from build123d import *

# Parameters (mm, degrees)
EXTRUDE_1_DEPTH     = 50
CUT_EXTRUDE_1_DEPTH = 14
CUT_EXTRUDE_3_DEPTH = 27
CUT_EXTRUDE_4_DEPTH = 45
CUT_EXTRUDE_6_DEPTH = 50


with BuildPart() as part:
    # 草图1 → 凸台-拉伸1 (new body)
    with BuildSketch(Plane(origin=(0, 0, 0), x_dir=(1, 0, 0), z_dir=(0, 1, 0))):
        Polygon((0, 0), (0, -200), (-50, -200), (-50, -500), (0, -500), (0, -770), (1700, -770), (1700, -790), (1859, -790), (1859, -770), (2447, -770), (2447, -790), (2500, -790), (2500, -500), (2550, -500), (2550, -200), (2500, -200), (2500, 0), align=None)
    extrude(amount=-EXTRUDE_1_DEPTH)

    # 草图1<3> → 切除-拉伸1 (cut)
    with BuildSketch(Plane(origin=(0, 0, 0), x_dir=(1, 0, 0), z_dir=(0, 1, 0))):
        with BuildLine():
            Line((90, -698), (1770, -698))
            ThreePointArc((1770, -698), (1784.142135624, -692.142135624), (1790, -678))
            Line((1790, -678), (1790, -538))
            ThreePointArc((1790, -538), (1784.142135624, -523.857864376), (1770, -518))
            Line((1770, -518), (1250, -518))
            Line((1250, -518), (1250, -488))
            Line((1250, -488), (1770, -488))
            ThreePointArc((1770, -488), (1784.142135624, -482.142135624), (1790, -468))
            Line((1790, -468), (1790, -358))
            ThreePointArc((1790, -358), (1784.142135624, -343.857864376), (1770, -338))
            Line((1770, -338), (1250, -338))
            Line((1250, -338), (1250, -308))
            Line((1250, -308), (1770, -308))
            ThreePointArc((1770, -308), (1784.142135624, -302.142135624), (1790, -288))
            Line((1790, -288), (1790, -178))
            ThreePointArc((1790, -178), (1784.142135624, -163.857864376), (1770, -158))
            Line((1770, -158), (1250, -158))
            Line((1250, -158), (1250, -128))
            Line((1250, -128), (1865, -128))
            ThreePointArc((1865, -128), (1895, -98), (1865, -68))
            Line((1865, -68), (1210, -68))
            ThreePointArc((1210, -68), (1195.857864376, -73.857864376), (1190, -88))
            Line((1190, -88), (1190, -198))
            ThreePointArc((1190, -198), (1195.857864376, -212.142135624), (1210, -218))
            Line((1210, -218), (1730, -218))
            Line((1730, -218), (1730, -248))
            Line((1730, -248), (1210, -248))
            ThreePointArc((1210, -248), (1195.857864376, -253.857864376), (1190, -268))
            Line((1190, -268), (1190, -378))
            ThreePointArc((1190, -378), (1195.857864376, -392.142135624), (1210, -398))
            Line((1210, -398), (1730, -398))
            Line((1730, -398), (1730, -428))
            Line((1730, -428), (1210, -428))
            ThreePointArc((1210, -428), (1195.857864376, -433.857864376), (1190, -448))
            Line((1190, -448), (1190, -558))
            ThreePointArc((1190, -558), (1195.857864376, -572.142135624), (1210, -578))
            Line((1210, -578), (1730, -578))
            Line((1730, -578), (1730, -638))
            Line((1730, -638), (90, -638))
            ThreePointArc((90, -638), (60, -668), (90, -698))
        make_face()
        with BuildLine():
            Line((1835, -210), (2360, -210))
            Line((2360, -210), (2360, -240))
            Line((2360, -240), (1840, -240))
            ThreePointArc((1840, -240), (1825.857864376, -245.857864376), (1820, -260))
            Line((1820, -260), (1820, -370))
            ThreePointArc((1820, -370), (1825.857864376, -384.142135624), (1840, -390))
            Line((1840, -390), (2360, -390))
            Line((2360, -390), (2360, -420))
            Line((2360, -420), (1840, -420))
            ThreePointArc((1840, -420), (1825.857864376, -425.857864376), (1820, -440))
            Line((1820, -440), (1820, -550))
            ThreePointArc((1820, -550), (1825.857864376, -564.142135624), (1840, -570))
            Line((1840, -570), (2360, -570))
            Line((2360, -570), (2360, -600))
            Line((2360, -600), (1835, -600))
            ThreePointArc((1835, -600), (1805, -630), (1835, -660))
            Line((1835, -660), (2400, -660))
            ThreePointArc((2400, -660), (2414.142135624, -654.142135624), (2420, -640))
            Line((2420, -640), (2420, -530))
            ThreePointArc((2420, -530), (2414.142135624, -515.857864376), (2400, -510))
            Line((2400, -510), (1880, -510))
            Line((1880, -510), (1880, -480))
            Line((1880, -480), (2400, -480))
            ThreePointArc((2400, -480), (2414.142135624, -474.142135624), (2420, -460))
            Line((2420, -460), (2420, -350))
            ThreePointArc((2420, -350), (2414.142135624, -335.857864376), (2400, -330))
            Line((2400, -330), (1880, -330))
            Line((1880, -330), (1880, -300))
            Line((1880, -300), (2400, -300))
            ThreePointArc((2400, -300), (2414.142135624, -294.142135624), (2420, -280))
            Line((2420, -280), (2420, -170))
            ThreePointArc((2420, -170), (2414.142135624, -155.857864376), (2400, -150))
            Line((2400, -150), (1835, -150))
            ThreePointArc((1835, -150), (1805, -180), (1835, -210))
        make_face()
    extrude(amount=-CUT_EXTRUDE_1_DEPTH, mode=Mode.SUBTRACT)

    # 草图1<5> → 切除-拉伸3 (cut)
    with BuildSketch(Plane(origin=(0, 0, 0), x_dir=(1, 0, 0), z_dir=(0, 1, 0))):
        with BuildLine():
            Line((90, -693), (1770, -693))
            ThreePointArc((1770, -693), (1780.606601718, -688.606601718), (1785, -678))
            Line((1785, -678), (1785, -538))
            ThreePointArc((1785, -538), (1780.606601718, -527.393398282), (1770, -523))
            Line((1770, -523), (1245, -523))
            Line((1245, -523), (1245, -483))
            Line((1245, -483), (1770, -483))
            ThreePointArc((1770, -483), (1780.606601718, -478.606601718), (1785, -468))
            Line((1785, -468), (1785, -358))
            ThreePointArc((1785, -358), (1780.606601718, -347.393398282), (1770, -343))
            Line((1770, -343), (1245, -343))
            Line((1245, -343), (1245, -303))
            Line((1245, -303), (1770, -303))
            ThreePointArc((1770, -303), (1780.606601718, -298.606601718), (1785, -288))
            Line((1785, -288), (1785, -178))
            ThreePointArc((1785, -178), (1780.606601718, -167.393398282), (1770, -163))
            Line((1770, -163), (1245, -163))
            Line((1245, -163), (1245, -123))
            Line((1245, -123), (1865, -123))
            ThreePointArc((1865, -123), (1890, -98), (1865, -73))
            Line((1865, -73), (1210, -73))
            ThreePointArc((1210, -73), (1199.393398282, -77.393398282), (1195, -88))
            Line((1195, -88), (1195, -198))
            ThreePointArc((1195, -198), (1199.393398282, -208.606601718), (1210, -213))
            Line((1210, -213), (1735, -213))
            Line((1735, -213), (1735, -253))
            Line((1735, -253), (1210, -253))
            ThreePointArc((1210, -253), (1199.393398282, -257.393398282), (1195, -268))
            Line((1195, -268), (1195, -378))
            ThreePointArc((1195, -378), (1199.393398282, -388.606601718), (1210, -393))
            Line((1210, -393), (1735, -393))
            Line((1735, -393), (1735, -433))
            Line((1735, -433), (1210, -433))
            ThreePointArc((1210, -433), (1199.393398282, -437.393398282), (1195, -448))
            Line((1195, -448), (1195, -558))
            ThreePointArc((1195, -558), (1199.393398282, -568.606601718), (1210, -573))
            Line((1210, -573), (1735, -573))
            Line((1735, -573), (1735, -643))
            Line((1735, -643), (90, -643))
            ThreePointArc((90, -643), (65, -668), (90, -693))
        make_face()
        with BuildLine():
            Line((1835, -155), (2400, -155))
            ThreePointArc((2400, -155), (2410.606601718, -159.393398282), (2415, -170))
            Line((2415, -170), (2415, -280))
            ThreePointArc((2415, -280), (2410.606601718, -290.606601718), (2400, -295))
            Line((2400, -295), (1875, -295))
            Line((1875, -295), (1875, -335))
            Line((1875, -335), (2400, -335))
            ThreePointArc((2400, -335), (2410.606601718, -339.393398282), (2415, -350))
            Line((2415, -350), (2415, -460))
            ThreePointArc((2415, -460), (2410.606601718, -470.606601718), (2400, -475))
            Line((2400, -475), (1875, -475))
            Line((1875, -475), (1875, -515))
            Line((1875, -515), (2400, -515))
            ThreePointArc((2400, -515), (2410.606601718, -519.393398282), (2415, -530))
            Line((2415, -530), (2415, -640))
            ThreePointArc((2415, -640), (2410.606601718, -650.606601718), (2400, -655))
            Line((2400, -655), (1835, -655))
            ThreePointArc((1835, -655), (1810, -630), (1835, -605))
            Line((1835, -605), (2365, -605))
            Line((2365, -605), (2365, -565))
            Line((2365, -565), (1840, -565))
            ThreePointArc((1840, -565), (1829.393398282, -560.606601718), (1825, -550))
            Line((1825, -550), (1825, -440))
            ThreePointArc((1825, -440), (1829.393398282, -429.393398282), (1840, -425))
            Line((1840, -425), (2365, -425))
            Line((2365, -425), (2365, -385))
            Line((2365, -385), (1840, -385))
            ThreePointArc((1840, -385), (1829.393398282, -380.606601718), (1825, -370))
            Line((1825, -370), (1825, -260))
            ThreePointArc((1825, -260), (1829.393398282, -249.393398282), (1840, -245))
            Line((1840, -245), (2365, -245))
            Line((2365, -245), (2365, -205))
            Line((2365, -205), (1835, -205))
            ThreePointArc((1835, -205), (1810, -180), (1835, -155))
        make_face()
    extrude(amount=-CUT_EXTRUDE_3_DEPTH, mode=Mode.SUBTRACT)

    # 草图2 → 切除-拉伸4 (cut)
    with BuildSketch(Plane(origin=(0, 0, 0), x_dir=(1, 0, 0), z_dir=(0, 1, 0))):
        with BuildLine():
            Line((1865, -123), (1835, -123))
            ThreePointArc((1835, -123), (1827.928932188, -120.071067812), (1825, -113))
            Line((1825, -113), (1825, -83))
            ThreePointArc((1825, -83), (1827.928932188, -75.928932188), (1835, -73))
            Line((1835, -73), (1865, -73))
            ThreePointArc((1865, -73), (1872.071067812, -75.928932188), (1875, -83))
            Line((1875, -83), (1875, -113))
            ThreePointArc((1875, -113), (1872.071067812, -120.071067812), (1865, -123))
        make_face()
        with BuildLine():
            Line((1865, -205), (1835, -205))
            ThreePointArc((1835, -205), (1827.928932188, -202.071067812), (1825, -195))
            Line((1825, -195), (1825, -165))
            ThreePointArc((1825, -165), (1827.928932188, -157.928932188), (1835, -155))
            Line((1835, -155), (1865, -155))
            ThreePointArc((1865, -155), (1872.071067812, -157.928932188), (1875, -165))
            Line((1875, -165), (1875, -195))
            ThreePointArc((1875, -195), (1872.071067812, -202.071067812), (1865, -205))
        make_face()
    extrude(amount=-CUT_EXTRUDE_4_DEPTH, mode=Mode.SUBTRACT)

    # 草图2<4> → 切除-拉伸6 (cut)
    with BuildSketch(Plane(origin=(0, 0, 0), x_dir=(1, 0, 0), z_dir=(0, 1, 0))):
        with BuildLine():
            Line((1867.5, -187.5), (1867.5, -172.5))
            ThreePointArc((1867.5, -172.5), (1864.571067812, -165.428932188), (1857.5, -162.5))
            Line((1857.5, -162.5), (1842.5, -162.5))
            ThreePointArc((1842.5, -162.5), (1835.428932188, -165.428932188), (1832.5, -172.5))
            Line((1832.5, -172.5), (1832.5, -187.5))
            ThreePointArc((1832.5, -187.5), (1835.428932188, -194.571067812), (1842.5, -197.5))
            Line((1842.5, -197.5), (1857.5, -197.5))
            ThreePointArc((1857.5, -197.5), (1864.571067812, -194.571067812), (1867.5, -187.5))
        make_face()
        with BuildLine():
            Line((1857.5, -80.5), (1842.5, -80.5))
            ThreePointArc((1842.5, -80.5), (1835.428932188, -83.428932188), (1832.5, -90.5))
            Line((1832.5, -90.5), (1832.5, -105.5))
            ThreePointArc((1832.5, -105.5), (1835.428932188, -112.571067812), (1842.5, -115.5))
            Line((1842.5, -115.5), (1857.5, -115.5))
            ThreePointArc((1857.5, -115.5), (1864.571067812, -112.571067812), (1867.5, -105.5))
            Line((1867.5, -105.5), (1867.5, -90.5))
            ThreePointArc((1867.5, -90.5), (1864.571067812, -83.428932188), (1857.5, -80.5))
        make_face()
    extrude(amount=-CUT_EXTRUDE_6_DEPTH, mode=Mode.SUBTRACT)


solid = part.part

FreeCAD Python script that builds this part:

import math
import FreeCAD as App
import Part
import Sketcher
from FreeCAD import Vector
Q = App.Units.Quantity


def add_polygon(sketch, points):
    """Adds a closed chain of lines whose ends are joined by coincident constraints."""
    first, n = sketch.GeometryCount, len(points)
    for a, b in zip(points, points[1:] + points[:1]):
        sketch.addGeometry(Part.LineSegment(App.Vector(*a, 0), App.Vector(*b, 0)), False)
    for i in range(n):
        sketch.addConstraint(Sketcher.Constraint("Coincident", first + i, 2, first + (i + 1) % n, 1))

doc = App.newDocument("Part")
body = doc.addObject("PartDesign::Body", "Body")

# Sketch on XZ plane
sketch1 = body.newObject("Sketcher::SketchObject", "Sketch")
sketch1.AttachmentSupport = (doc.getObject("XZ_Plane"), [""])
sketch1.MapMode = "FlatFace"
add_polygon(sketch1, [(0, 0), (0, 200), (-50, 200), (-50, 500), (0, 500), (0, 770), (1700, 770), (1700, 790), (1859, 790), (1859, 770), (2447, 770), (2447, 790), (2500, 790), (2500, 500), (2550, 500), (2550, 200), (2500, 200), (2500, 0)])  # lines 0-17
sketch1.addConstraint([
    Sketcher.Constraint("Vertical", 0),
    Sketcher.Constraint("Horizontal", 1),
    Sketcher.Constraint("Vertical", 2),
    Sketcher.Constraint("Horizontal", 3),
    Sketcher.Constraint("Vertical", 4),
    Sketcher.Constraint("Horizontal", 5),
    Sketcher.Constraint("Vertical", 6),
    Sketcher.Constraint("Horizontal", 7),
    Sketcher.Constraint("Vertical", 8),
    Sketcher.Constraint("Horizontal", 9),
    Sketcher.Constraint("Vertical", 10),
    Sketcher.Constraint("Horizontal", 11),
    Sketcher.Constraint("Vertical", 12),
    Sketcher.Constraint("Horizontal", 13),
    Sketcher.Constraint("Vertical", 14),
    Sketcher.Constraint("Horizontal", 15),
    Sketcher.Constraint("Vertical", 16),
    Sketcher.Constraint("Horizontal", 17),
    Sketcher.Constraint("Coincident", 17, 2, -1, 1),
    Sketcher.Constraint("PointOnObject", 3, 2, -2),
    Sketcher.Constraint("Horizontal", 5, 2, 8, 2),
    Sketcher.Constraint("Horizontal", 7, 2, 10, 2),
    Sketcher.Constraint("Horizontal", 3, 2, 12, 2),
    Sketcher.Constraint("Horizontal", 1, 2, 14, 2),
    Sketcher.Constraint("Vertical", 12, 2, 15, 2),
    Sketcher.Constraint("Equal", 3, 13),
    Sketcher.Constraint("DistanceX", 1, 2, 1, 1, Q("50 mm")),
    Sketcher.Constraint("DistanceX", 5, 1, 5, 2, Q("1700 mm")),
    Sketcher.Constraint("DistanceX", 7, 1, 7, 2, Q("159 mm")),
    Sketcher.Constraint("DistanceX", 9, 1, 9, 2, Q("588 mm")),
    Sketcher.Constraint("DistanceX", 11, 1, 11, 2, Q("53 mm")),
    Sketcher.Constraint("DistanceY", 0, 1, 0, 2, Q("200 mm")),
    Sketcher.Constraint("DistanceY", 2, 1, 2, 2, Q("300 mm")),
    Sketcher.Constraint("DistanceY", 4, 1, 4, 2, Q("270 mm")),
    Sketcher.Constraint("DistanceY", 6, 1, 6, 2, Q("20 mm")),
])
pad1 = body.newObject("PartDesign::Pad", "Pad")
pad1.Profile = sketch1
pad1.Length = 50

# Sketch on XZ plane
sketch2 = body.newObject("Sketcher::SketchObject", "Sketch001")
sketch2.AttachmentSupport = (doc.getObject("XZ_Plane"), [""])
sketch2.MapMode = "FlatFace"
sketch2.addGeometry([
    Part.LineSegment(Vector(90, 698, 0), Vector(1770, 698, 0)),  # 0
    Part.ArcOfCircle(Part.Circle(Vector(1770, 678, 0), Vector(0, 0, 1), 20), math.radians(0), math.radians(90)),  # 1
    Part.LineSegment(Vector(1790, 678, 0), Vector(1790, 538, 0)),  # 2
    Part.ArcOfCircle(Part.Circle(Vector(1770, 538, 0), Vector(0, 0, 1), 20), math.radians(-90), math.radians(0)),  # 3
    Part.LineSegment(Vector(1770, 518, 0), Vector(1250, 518, 0)),  # 4
    Part.LineSegment(Vector(1250, 518, 0), Vector(1250, 488, 0)),  # 5
    Part.LineSegment(Vector(1250, 488, 0), Vector(1770, 488, 0)),  # 6
    Part.ArcOfCircle(Part.Circle(Vector(1770, 468, 0), Vector(0, 0, 1), 20), math.radians(0), math.radians(90)),  # 7
    Part.LineSegment(Vector(1790, 468, 0), Vector(1790, 358, 0)),  # 8
    Part.ArcOfCircle(Part.Circle(Vector(1770, 358, 0), Vector(0, 0, 1), 20), math.radians(-90), math.radians(0)),  # 9
    Part.LineSegment(Vector(1770, 338, 0), Vector(1250, 338, 0)),  # 10
    Part.LineSegment(Vector(1250, 338, 0), Vector(1250, 308, 0)),  # 11
    Part.LineSegment(Vector(1250, 308, 0), Vector(1770, 308, 0)),  # 12
    Part.ArcOfCircle(Part.Circle(Vector(1770, 288, 0), Vector(0, 0, 1), 20), math.radians(0), math.radians(90)),  # 13
    Part.LineSegment(Vector(1790, 288, 0), Vector(1790, 178, 0)),  # 14
    Part.ArcOfCircle(Part.Circle(Vector(1770, 178, 0), Vector(0, 0, 1), 20), math.radians(-90), math.radians(0)),  # 15
    Part.LineSegment(Vector(1770, 158, 0), Vector(1250, 158, 0)),  # 16
    Part.LineSegment(Vector(1250, 158, 0), Vector(1250, 128, 0)),  # 17
    Part.LineSegment(Vector(1250, 128, 0), Vector(1865, 128, 0)),  # 18
    Part.ArcOfCircle(Part.Circle(Vector(1865, 98, 0), Vector(0, 0, 1), 30), math.radians(-90), math.radians(90)),  # 19
    Part.LineSegment(Vector(1865, 68, 0), Vector(1210, 68, 0)),  # 20
    Part.ArcOfCircle(Part.Circle(Vector(1210, 88, 0), Vector(0, 0, 1), 20), math.radians(180), math.radians(270)),  # 21
    Part.LineSegment(Vector(1190, 88, 0), Vector(1190, 198, 0)),  # 22
    Part.ArcOfCircle(Part.Circle(Vector(1210, 198, 0), Vector(0, 0, 1), 20), math.radians(90), math.radians(180)),  # 23
    Part.LineSegment(Vector(1210, 218, 0), Vector(1730, 218, 0)),  # 24
    Part.LineSegment(Vector(1730, 218, 0), Vector(1730, 248, 0)),  # 25
    Part.LineSegment(Vector(1730, 248, 0), Vector(1210, 248, 0)),  # 26
    Part.ArcOfCircle(Part.Circle(Vector(1210, 268, 0), Vector(0, 0, 1), 20), math.radians(180), math.radians(270)),  # 27
    Part.LineSegment(Vector(1190, 268, 0), Vector(1190, 378, 0)),  # 28
    Part.ArcOfCircle(Part.Circle(Vector(1210, 378, 0), Vector(0, 0, 1), 20), math.radians(90), math.radians(180)),  # 29
    Part.LineSegment(Vector(1210, 398, 0), Vector(1730, 398, 0)),  # 30
    Part.LineSegment(Vector(1730, 398, 0), Vector(1730, 428, 0)),  # 31
    Part.LineSegment(Vector(1730, 428, 0), Vector(1210, 428, 0)),  # 32
    Part.ArcOfCircle(Part.Circle(Vector(1210, 448, 0), Vector(0, 0, 1), 20), math.radians(180), math.radians(270)),  # 33
    Part.LineSegment(Vector(1190, 448, 0), Vector(1190, 558, 0)),  # 34
    Part.ArcOfCircle(Part.Circle(Vector(1210, 558, 0), Vector(0, 0, 1), 20), math.radians(90), math.radians(180)),  # 35
    Part.LineSegment(Vector(1210, 578, 0), Vector(1730, 578, 0)),  # 36
    Part.LineSegment(Vector(1730, 578, 0), Vector(1730, 638, 0)),  # 37
    Part.LineSegment(Vector(1730, 638, 0), Vector(90, 638, 0)),  # 38
    Part.ArcOfCircle(Part.Circle(Vector(90, 668, 0), Vector(0, 0, 1), 30), math.radians(90), math.radians(270)),  # 39
    Part.LineSegment(Vector(1835, 210, 0), Vector(2360, 210, 0)),  # 40
    Part.LineSegment(Vector(2360, 210, 0), Vector(2360, 240, 0)),  # 41
    Part.LineSegment(Vector(2360, 240, 0), Vector(1840, 240, 0)),  # 42
    Part.ArcOfCircle(Part.Circle(Vector(1840, 260, 0), Vector(0, 0, 1), 20), math.radians(180), math.radians(270)),  # 43
    Part.LineSegment(Vector(1820, 260, 0), Vector(1820, 370, 0)),  # 44
    Part.ArcOfCircle(Part.Circle(Vector(1840, 370, 0), Vector(0, 0, 1), 20), math.radians(90), math.radians(180)),  # 45
    Part.LineSegment(Vector(1840, 390, 0), Vector(2360, 390, 0)),  # 46
    Part.LineSegment(Vector(2360, 390, 0), Vector(2360, 420, 0)),  # 47
    Part.LineSegment(Vector(2360, 420, 0), Vector(1840, 420, 0)),  # 48
    Part.ArcOfCircle(Part.Circle(Vector(1840, 440, 0), Vector(0, 0, 1), 20), math.radians(180), math.radians(270)),  # 49
    Part.LineSegment(Vector(1820, 440, 0), Vector(1820, 550, 0)),  # 50
    Part.ArcOfCircle(Part.Circle(Vector(1840, 550, 0), Vector(0, 0, 1), 20), math.radians(90), math.radians(180)),  # 51
    Part.LineSegment(Vector(1840, 570, 0), Vector(2360, 570, 0)),  # 52
    Part.LineSegment(Vector(2360, 570, 0), Vector(2360, 600, 0)),  # 53
    Part.LineSegment(Vector(2360, 600, 0), Vector(1835, 600, 0)),  # 54
    Part.ArcOfCircle(Part.Circle(Vector(1835, 630, 0), Vector(0, 0, 1), 30), math.radians(90), math.radians(270)),  # 55
    Part.LineSegment(Vector(1835, 660, 0), Vector(2400, 660, 0)),  # 56
    Part.ArcOfCircle(Part.Circle(Vector(2400, 640, 0), Vector(0, 0, 1), 20), math.radians(0), math.radians(90)),  # 57
    Part.LineSegment(Vector(2420, 640, 0), Vector(2420, 530, 0)),  # 58
    Part.ArcOfCircle(Part.Circle(Vector(2400, 530, 0), Vector(0, 0, 1), 20), math.radians(-90), math.radians(0)),  # 59
    Part.LineSegment(Vector(2400, 510, 0), Vector(1880, 510, 0)),  # 60
    Part.LineSegment(Vector(1880, 510, 0), Vector(1880, 480, 0)),  # 61
    Part.LineSegment(Vector(1880, 480, 0), Vector(2400, 480, 0)),  # 62
    Part.ArcOfCircle(Part.Circle(Vector(2400, 460, 0), Vector(0, 0, 1), 20), math.radians(0), math.radians(90)),  # 63
    Part.LineSegment(Vector(2420, 460, 0), Vector(2420, 350, 0)),  # 64
    Part.ArcOfCircle(Part.Circle(Vector(2400, 350, 0), Vector(0, 0, 1), 20), math.radians(-90), math.radians(0)),  # 65
    Part.LineSegment(Vector(2400, 330, 0), Vector(1880, 330, 0)),  # 66
    Part.LineSegment(Vector(1880, 330, 0), Vector(1880, 300, 0)),  # 67
    Part.LineSegment(Vector(1880, 300, 0), Vector(2400, 300, 0)),  # 68
    Part.ArcOfCircle(Part.Circle(Vector(2400, 280, 0), Vector(0, 0, 1), 20), math.radians(0), math.radians(90)),  # 69
    Part.LineSegment(Vector(2420, 280, 0), Vector(2420, 170, 0)),  # 70
    Part.ArcOfCircle(Part.Circle(Vector(2400, 170, 0), Vector(0, 0, 1), 20), math.radians(-90), math.radians(0)),  # 71
    Part.LineSegment(Vector(2400, 150, 0), Vector(1835, 150, 0)),  # 72
    Part.ArcOfCircle(Part.Circle(Vector(1835, 180, 0), Vector(0, 0, 1), 30), math.radians(90), math.radians(270)),  # 73
], False)
sketch2.addConstraint([
    Sketcher.Constraint("Tangent", 0, 2, 1, 2),
    Sketcher.Constraint("Tangent", 1, 1, 2, 1),
    Sketcher.Constraint("Tangent", 2, 2, 3, 2),
    Sketcher.Constraint("Tangent", 3, 1, 4, 1),
    Sketcher.Constraint("Coincident", 4, 2, 5, 1),
    Sketcher.Constraint("Coincident", 5, 2, 6, 1),
    Sketcher.Constraint("Tangent", 6, 2, 7, 2),
    Sketcher.Constraint("Tangent", 7, 1, 8, 1),
    Sketcher.Constraint("Tangent", 8, 2, 9, 2),
    Sketcher.Constraint("Tangent", 9, 1, 10, 1),
    Sketcher.Constraint("Coincident", 10, 2, 11, 1),
    Sketcher.Constraint("Coincident", 11, 2, 12, 1),
    Sketcher.Constraint("Tangent", 12, 2, 13, 2),
    Sketcher.Constraint("Tangent", 13, 1, 14, 1),
    Sketcher.Constraint("Tangent", 14, 2, 15, 2),
    Sketcher.Constraint("Tangent", 15, 1, 16, 1),
    Sketcher.Constraint("Coincident", 16, 2, 17, 1),
    Sketcher.Constraint("Coincident", 17, 2, 18, 1),
    Sketcher.Constraint("Tangent", 18, 2, 19, 2),
    Sketcher.Constraint("Tangent", 19, 1, 20, 1),
    Sketcher.Constraint("Tangent", 20, 2, 21, 2),
    Sketcher.Constraint("Tangent", 21, 1, 22, 1),
    Sketcher.Constraint("Tangent", 22, 2, 23, 2),
    Sketcher.Constraint("Tangent", 23, 1, 24, 1),
    Sketcher.Constraint("Coincident", 24, 2, 25, 1),
    Sketcher.Constraint("Coincident", 25, 2, 26, 1),
    Sketcher.Constraint("Tangent", 26, 2, 27, 2),
    Sketcher.Constraint("Tangent", 27, 1, 28, 1),
    Sketcher.Constraint("Tangent", 28, 2, 29, 2),
    Sketcher.Constraint("Tangent", 29, 1, 30, 1),
    Sketcher.Constraint("Coincident", 30, 2, 31, 1),
    Sketcher.Constraint("Coincident", 31, 2, 32, 1),
    Sketcher.Constraint("Tangent", 32, 2, 33, 2),
    Sketcher.Constraint("Tangent", 33, 1, 34, 1),
    Sketcher.Constraint("Tangent", 34, 2, 35, 2),
    Sketcher.Constraint("Tangent", 35, 1, 36, 1),
    Sketcher.Constraint("Coincident", 36, 2, 37, 1),
    Sketcher.Constraint("Coincident", 37, 2, 38, 1),
    Sketcher.Constraint("Tangent", 38, 2, 39, 2),
    Sketcher.Constraint("Tangent", 39, 1, 0, 1),
    Sketcher.Constraint("Coincident", 40, 2, 41, 1),
    Sketcher.Constraint("Coincident", 41, 2, 42, 1),
    Sketcher.Constraint("Tangent", 42, 2, 43, 2),
    Sketcher.Constraint("Tangent", 43, 1, 44, 1),
    Sketcher.Constraint("Tangent", 44, 2, 45, 2),
    Sketcher.Constraint("Tangent", 45, 1, 46, 1),
    Sketcher.Constraint("Coincident", 46, 2, 47, 1),
    Sketcher.Constraint("Coincident", 47, 2, 48, 1),
    Sketcher.Constraint("Tangent", 48, 2, 49, 2),
    Sketcher.Constraint("Tangent", 49, 1, 50, 1),
    Sketcher.Constraint("Tangent", 50, 2, 51, 2),
    Sketcher.Constraint("Tangent", 51, 1, 52, 1),
    Sketcher.Constraint("Coincident", 52, 2, 53, 1),
    Sketcher.Constraint("Coincident", 53, 2, 54, 1),
    Sketcher.Constraint("Tangent", 54, 2, 55, 2),
    Sketcher.Constraint("Tangent", 55, 1, 56, 1),
    Sketcher.Constraint("Tangent", 56, 2, 57, 2),
    Sketcher.Constraint("Tangent", 57, 1, 58, 1),
    Sketcher.Constraint("Tangent", 58, 2, 59, 2),
    Sketcher.Constraint("Tangent", 59, 1, 60, 1),
    Sketcher.Constraint("Coincident", 60, 2, 61, 1),
    Sketcher.Constraint("Coincident", 61, 2, 62, 1),
    Sketcher.Constraint("Tangent", 62, 2, 63, 2),
    Sketcher.Constraint("Tangent", 63, 1, 64, 1),
    Sketcher.Constraint("Tangent", 64, 2, 65, 2),
    Sketcher.Constraint("Tangent", 65, 1, 66, 1),
    Sketcher.Constraint("Coincident", 66, 2, 67, 1),
    Sketcher.Constraint("Coincident", 67, 2, 68, 1),
    Sketcher.Constraint("Tangent", 68, 2, 69, 2),
    Sketcher.Constraint("Tangent", 69, 1, 70, 1),
    Sketcher.Constraint("Tangent", 70, 2, 71, 2),
    Sketcher.Constraint("Tangent", 71, 1, 72, 1),
    Sketcher.Constraint("Tangent", 72, 2, 73, 2),
    Sketcher.Constraint("Tangent", 73, 1, 40, 1),
    Sketcher.Constraint("Horizontal", 0),
    Sketcher.Constraint("Vertical", 2),
    Sketcher.Constraint("Horizontal", 4),
    Sketcher.Constraint("Vertical", 5),
    Sketcher.Constraint("Horizontal", 6),
    Sketcher.Constraint("Vertical", 8),
    Sketcher.Constraint("Horizontal", 10),
    Sketcher.Constraint("Vertical", 11),
    Sketcher.Constraint("Horizontal", 12),
    Sketcher.Constraint("Vertical", 14),
    Sketcher.Constraint("Horizontal", 16),
    Sketcher.Constraint("Vertical", 17),
    Sketcher.Constraint("Horizontal", 18),
    Sketcher.Constraint("Horizontal", 20),
    Sketcher.Constraint("Vertical", 22),
    Sketcher.Constraint("Horizontal", 24),
    Sketcher.Constraint("Vertical", 25),
    Sketcher.Constraint("Horizontal", 26),
    Sketcher.Constraint("Vertical", 28),
    Sketcher.Constraint("Horizontal", 30),
    Sketcher.Constraint("Vertical", 31),
    Sketcher.Constraint("Horizontal", 32),
    Sketcher.Constraint("Vertical", 34),
    Sketcher.Constraint("Horizontal", 36),
    Sketcher.Constraint("Vertical", 37),
    Sketcher.Constraint("Horizontal", 38),
    Sketcher.Constraint("Horizontal", 40),
    Sketcher.Constraint("Vertical", 41),
    Sketcher.Constraint("Horizontal", 42),
    Sketcher.Constraint("Vertical", 44),
    Sketcher.Constraint("Horizontal", 46),
    Sketcher.Constraint("Vertical", 47),
    Sketcher.Constraint("Horizontal", 48),
    Sketcher.Constraint("Vertical", 50),
    Sketcher.Constraint("Horizontal", 52),
    Sketcher.Constraint("Vertical", 53),
    Sketcher.Constraint("Horizontal", 54),
    Sketcher.Constraint("Horizontal", 56),
    Sketcher.Constraint("Vertical", 58),
    Sketcher.Constraint("Horizontal", 60),
    Sketcher.Constraint("Vertical", 61),
    Sketcher.Constraint("Horizontal", 62),
    Sketcher.Constraint("Vertical", 64),
    Sketcher.Constraint("Horizontal", 66),
    Sketcher.Constraint("Vertical", 67),
    Sketcher.Constraint("Horizontal", 68),
    Sketcher.Constraint("Vertical", 70),
    Sketcher.Constraint("Horizontal", 72),
    Sketcher.Constraint("Equal", 1, 3),
    Sketcher.Constraint("Equal", 3, 7),
    Sketcher.Constraint("Equal", 7, 9),
    Sketcher.Constraint("Equal", 9, 13),
    Sketcher.Constraint("Equal", 13, 15),
    Sketcher.Constraint("Equal", 15, 21),
    Sketcher.Constraint("Equal", 21, 23),
    Sketcher.Constraint("Equal", 23, 27),
    Sketcher.Constraint("Equal", 27, 29),
    Sketcher.Constraint("Equal", 29, 33),
    Sketcher.Constraint("Equal", 33, 35),
    Sketcher.Constraint("Equal", 19, 39),
    Sketcher.Constraint("Equal", 35, 43),
    Sketcher.Constraint("Equal", 43, 45),
    Sketcher.Constraint("Equal", 45, 49),
    Sketcher.Constraint("Equal", 49, 51),
    Sketcher.Constraint("Equal", 39, 55),
    Sketcher.Constraint("Equal", 51, 57),
    Sketcher.Constraint("Equal", 57, 59),
    Sketcher.Constraint("Equal", 59, 63),
    Sketcher.Constraint("Equal", 63, 65),
    Sketcher.Constraint("Equal", 65, 69),
    Sketcher.Constraint("Equal", 69, 71),
    Sketcher.Constraint("Equal", 55, 73),
    Sketcher.Constraint("Vertical", 3, 3, 7, 3),
    Sketcher.Constraint("Vertical", 9, 3, 13, 3),
    Sketcher.Constraint("Vertical", 23, 3, 27, 3),
    Sketcher.Constraint("Vertical", 29, 3, 33, 3),
    Sketcher.Constraint("Vertical", 45, 3, 49, 3),
    Sketcher.Constraint("Vertical", 59, 3, 63, 3),
    Sketcher.Constraint("Vertical", 65, 3, 69, 3),
    Sketcher.Constraint("Vertical", 55, 3, 73, 3),
    Sketcher.Constraint("Vertical", 5, 2, 10, 2),
    Sketcher.Constraint("Vertical", 11, 2, 16, 2),
    Sketcher.Constraint("Vertical", 25, 2, 30, 2),
    Sketcher.Constraint("Vertical", 31, 2, 36, 2),
    Sketcher.Constraint("Vertical", 41, 2, 46, 2),
    Sketcher.Constraint("Vertical", 47, 2, 52, 2),
    Sketcher.Constraint("Vertical", 61, 2, 66, 2),
    Sketcher.Constraint("Equal", 16, 24),
    Sketcher.Constraint("Equal", 36, 42),
    Sketcher.Constraint("Equal", 52, 60),
    Sketcher.Constraint("Equal", 5, 11),
    Sketcher.Constraint("Equal", 8, 14),
    Sketcher.Constraint("Equal", 11, 17),
    Sketcher.Constraint("Equal", 14, 22),
    Sketcher.Constraint("Equal", 17, 25),
    Sketcher.Constraint("Equal", 22, 28),
    Sketcher.Constraint("Equal", 25, 31),
    Sketcher.Constraint("Equal", 28, 34),
    Sketcher.Constraint("Equal", 31, 41),
    Sketcher.Constraint("Equal", 34, 44),
    Sketcher.Constraint("Equal", 41, 47),
    Sketcher.Constraint("Equal", 44, 50),
    Sketcher.Constraint("Equal", 47, 53),
    Sketcher.Constraint("Equal", 50, 58),
    Sketcher.Constraint("Equal", 53, 61),
    Sketcher.Constraint("Equal", 58, 64),
    Sketcher.Constraint("Equal", 61, 67),
    Sketcher.Constraint("Equal", 64, 70),
    Sketcher.Constraint("Radius", 1, Q("20 mm")),
    Sketcher.Constraint("Radius", 19, Q("30 mm")),
    Sketcher.Constraint("DistanceX", 0, 1, 0, 2, Q("1680 mm")),
    Sketcher.Constraint("DistanceX", 4, 2, 4, 1, Q("520 mm")),
    Sketcher.Constraint("DistanceX", 18, 1, 18, 2, Q("615 mm")),
    Sketcher.Constraint("DistanceX", 20, 2, 20, 1, Q("655 mm")),
    Sketcher.Constraint("DistanceX", 40, 1, 40, 2, Q("525 mm")),
    Sketcher.Constraint("DistanceX", 56, 1, 56, 2, Q("565 mm")),
    Sketcher.Constraint("DistanceY", 2, 2, 2, 1, Q("140 mm")),
    Sketcher.Constraint("DistanceY", 5, 2, 5, 1, Q("30 mm")),
    Sketcher.Constraint("DistanceX", -1, 1, 1, 3, Q("1770 mm")),
    Sketcher.Constraint("DistanceY", -1, 1, 1, 3, Q("678 mm")),
    Sketcher.Constraint("DistanceX", -1, 1, 43, 3, Q("1840 mm")),
    Sketcher.Constraint("DistanceY", -1, 1, 43, 3, Q("260 mm")),
])
pocket1 = body.newObject("PartDesign::Pocket", "Pocket")
pocket1.Profile = sketch2
pocket1.Length = 14
pocket1.Reversed = True

# Sketch on XZ plane
sketch3 = body.newObject("Sketcher::SketchObject", "Sketch002")
sketch3.AttachmentSupport = (doc.getObject("XZ_Plane"), [""])
sketch3.MapMode = "FlatFace"
sketch3.addGeometry([
    Part.LineSegment(Vector(90, 693, 0), Vector(1770, 693, 0)),  # 0
    Part.ArcOfCircle(Part.Circle(Vector(1770, 678, 0), Vector(0, 0, 1), 15), math.radians(0), math.radians(90)),  # 1
    Part.LineSegment(Vector(1785, 678, 0), Vector(1785, 538, 0)),  # 2
    Part.ArcOfCircle(Part.Circle(Vector(1770, 538, 0), Vector(0, 0, 1), 15), math.radians(-90), math.radians(0)),  # 3
    Part.LineSegment(Vector(1770, 523, 0), Vector(1245, 523, 0)),  # 4
    Part.LineSegment(Vector(1245, 523, 0), Vector(1245, 483, 0)),  # 5
    Part.LineSegment(Vector(1245, 483, 0), Vector(1770, 483, 0)),  # 6
    Part.ArcOfCircle(Part.Circle(Vector(1770, 468, 0), Vector(0, 0, 1), 15), math.radians(0), math.radians(90)),  # 7
    Part.LineSegment(Vector(1785, 468, 0), Vector(1785, 358, 0)),  # 8
    Part.ArcOfCircle(Part.Circle(Vector(1770, 358, 0), Vector(0, 0, 1), 15), math.radians(-90), math.radians(0)),  # 9
    Part.LineSegment(Vector(1770, 343, 0), Vector(1245, 343, 0)),  # 10
    Part.LineSegment(Vector(1245, 343, 0), Vector(1245, 303, 0)),  # 11
    Part.LineSegment(Vector(1245, 303, 0), Vector(1770, 303, 0)),  # 12
    Part.ArcOfCircle(Part.Circle(Vector(1770, 288, 0), Vector(0, 0, 1), 15), math.radians(0), math.radians(90)),  # 13
    Part.LineSegment(Vector(1785, 288, 0), Vector(1785, 178, 0)),  # 14
    Part.ArcOfCircle(Part.Circle(Vector(1770, 178, 0), Vector(0, 0, 1), 15), math.radians(-90), math.radians(0)),  # 15
    Part.LineSegment(Vector(1770, 163, 0), Vector(1245, 163, 0)),  # 16
    Part.LineSegment(Vector(1245, 163, 0), Vector(1245, 123, 0)),  # 17
    Part.LineSegment(Vector(1245, 123, 0), Vector(1865, 123, 0)),  # 18
    Part.ArcOfCircle(Part.Circle(Vector(1865, 98, 0), Vector(0, 0, 1), 25), math.radians(-90), math.radians(90)),  # 19
    Part.LineSegment(Vector(1865, 73, 0), Vector(1210, 73, 0)),  # 20
    Part.ArcOfCircle(Part.Circle(Vector(1210, 88, 0), Vector(0, 0, 1), 15), math.radians(180), math.radians(270)),  # 21
    Part.LineSegment(Vector(1195, 88, 0), Vector(1195, 198, 0)),  # 22
    Part.ArcOfCircle(Part.Circle(Vector(1210, 198, 0), Vector(0, 0, 1), 15), math.radians(90), math.radians(180)),  # 23
    Part.LineSegment(Vector(1210, 213, 0), Vector(1735, 213, 0)),  # 24
    Part.LineSegment(Vector(1735, 213, 0), Vector(1735, 253, 0)),  # 25
    Part.LineSegment(Vector(1735, 253, 0), Vector(1210, 253, 0)),  # 26
    Part.ArcOfCircle(Part.Circle(Vector(1210, 268, 0), Vector(0, 0, 1), 15), math.radians(180), math.radians(270)),  # 27
    Part.LineSegment(Vector(1195, 268, 0), Vector(1195, 378, 0)),  # 28
    Part.ArcOfCircle(Part.Circle(Vector(1210, 378, 0), Vector(0, 0, 1), 15), math.radians(90), math.radians(180)),  # 29
    Part.LineSegment(Vector(1210, 393, 0), Vector(1735, 393, 0)),  # 30
    Part.LineSegment(Vector(1735, 393, 0), Vector(1735, 433, 0)),  # 31
    Part.LineSegment(Vector(1735, 433, 0), Vector(1210, 433, 0)),  # 32
    Part.ArcOfCircle(Part.Circle(Vector(1210, 448, 0), Vector(0, 0, 1), 15), math.radians(180), math.radians(270)),  # 33
    Part.LineSegment(Vector(1195, 448, 0), Vector(1195, 558, 0)),  # 34
    Part.ArcOfCircle(Part.Circle(Vector(1210, 558, 0), Vector(0, 0, 1), 15), math.radians(90), math.radians(180)),  # 35
    Part.LineSegment(Vector(1210, 573, 0), Vector(1735, 573, 0)),  # 36
    Part.LineSegment(Vector(1735, 573, 0), Vector(1735, 643, 0)),  # 37
    Part.LineSegment(Vector(1735, 643, 0), Vector(90, 643, 0)),  # 38
    Part.ArcOfCircle(Part.Circle(Vector(90, 668, 0), Vector(0, 0, 1), 25), math.radians(90), math.radians(270)),  # 39
    Part.LineSegment(Vector(2400, 155, 0), Vector(1835, 155, 0)),  # 40
    Part.ArcOfCircle(Part.Circle(Vector(1835, 180, 0), Vector(0, 0, 1), 25), math.radians(90), math.radians(270)),  # 41
    Part.LineSegment(Vector(1835, 205, 0), Vector(2365, 205, 0)),  # 42
    Part.LineSegment(Vector(2365, 205, 0), Vector(2365, 245, 0)),  # 43
    Part.LineSegment(Vector(2365, 245, 0), Vector(1840, 245, 0)),  # 44
    Part.ArcOfCircle(Part.Circle(Vector(1840, 260, 0), Vector(0, 0, 1), 15), math.radians(180), math.radians(270)),  # 45
    Part.LineSegment(Vector(1825, 260, 0), Vector(1825, 370, 0)),  # 46
    Part.ArcOfCircle(Part.Circle(Vector(1840, 370, 0), Vector(0, 0, 1), 15), math.radians(90), math.radians(180)),  # 47
    Part.LineSegment(Vector(1840, 385, 0), Vector(2365, 385, 0)),  # 48
    Part.LineSegment(Vector(2365, 385, 0), Vector(2365, 425, 0)),  # 49
    Part.LineSegment(Vector(2365, 425, 0), Vector(1840, 425, 0)),  # 50
    Part.ArcOfCircle(Part.Circle(Vector(1840, 440, 0), Vector(0, 0, 1), 15), math.radians(180), math.radians(270)),  # 51
    Part.LineSegment(Vector(1825, 440, 0), Vector(1825, 550, 0)),  # 52
    Part.ArcOfCircle(Part.Circle(Vector(1840, 550, 0), Vector(0, 0, 1), 15), math.radians(90), math.radians(180)),  # 53
    Part.LineSegment(Vector(1840, 565, 0), Vector(2365, 565, 0)),  # 54
    Part.LineSegment(Vector(2365, 565, 0), Vector(2365, 605, 0)),  # 55
    Part.LineSegment(Vector(2365, 605, 0), Vector(1835, 605, 0)),  # 56
    Part.ArcOfCircle(Part.Circle(Vector(1835, 630, 0), Vector(0, 0, 1), 25), math.radians(90), math.radians(270)),  # 57
    Part.LineSegment(Vector(1835, 655, 0), Vector(2400, 655, 0)),  # 58
    Part.ArcOfCircle(Part.Circle(Vector(2400, 640, 0), Vector(0, 0, 1), 15), math.radians(0), math.radians(90)),  # 59
    Part.LineSegment(Vector(2415, 640, 0), Vector(2415, 530, 0)),  # 60
    Part.ArcOfCircle(Part.Circle(Vector(2400, 530, 0), Vector(0, 0, 1), 15), math.radians(-90), math.radians(0)),  # 61
    Part.LineSegment(Vector(2400, 515, 0), Vector(1875, 515, 0)),  # 62
    Part.LineSegment(Vector(1875, 515, 0), Vector(1875, 475, 0)),  # 63
    Part.LineSegment(Vector(1875, 475, 0), Vector(2400, 475, 0)),  # 64
    Part.ArcOfCircle(Part.Circle(Vector(2400, 460, 0), Vector(0, 0, 1), 15), math.radians(0), math.radians(90)),  # 65
    Part.LineSegment(Vector(2415, 460, 0), Vector(2415, 350, 0)),  # 66
    Part.ArcOfCircle(Part.Circle(Vector(2400, 350, 0), Vector(0, 0, 1), 15), math.radians(-90), math.radians(0)),  # 67
    Part.LineSegment(Vector(2400, 335, 0), Vector(1875, 335, 0)),  # 68
    Part.LineSegment(Vector(1875, 335, 0), Vector(1875, 295, 0)),  # 69
    Part.LineSegment(Vector(1875, 295, 0), Vector(2400, 295, 0)),  # 70
    Part.ArcOfCircle(Part.Circle(Vector(2400, 280, 0), Vector(0, 0, 1), 15), math.radians(0), math.radians(90)),  # 71
    Part.LineSegment(Vector(2415, 280, 0), Vector(2415, 170, 0)),  # 72
    Part.ArcOfCircle(Part.Circle(Vector(2400, 170, 0), Vector(0, 0, 1), 15), math.radians(-90), math.radians(0)),  # 73
], False)
sketch3.addConstraint([
    Sketcher.Constraint("Tangent", 0, 2, 1, 2),
    Sketcher.Constraint("Tangent", 1, 1, 2, 1),
    Sketcher.Constraint("Tangent", 2, 2, 3, 2),
    Sketcher.Constraint("Tangent", 3, 1, 4, 1),
    Sketcher.Constraint("Coincident", 4, 2, 5, 1),
    Sketcher.Constraint("Coincident", 5, 2, 6, 1),
    Sketcher.Constraint("Tangent", 6, 2, 7, 2),
    Sketcher.Constraint("Tangent", 7, 1, 8, 1),
    Sketcher.Constraint("Tangent", 8, 2, 9, 2),
    Sketcher.Constraint("Tangent", 9, 1, 10, 1),
    Sketcher.Constraint("Coincident", 10, 2, 11, 1),
    Sketcher.Constraint("Coincident", 11, 2, 12, 1),
    Sketcher.Constraint("Tangent", 12, 2, 13, 2),
    Sketcher.Constraint("Tangent", 13, 1, 14, 1),
    Sketcher.Constraint("Tangent", 14, 2, 15, 2),
    Sketcher.Constraint("Tangent", 15, 1, 16, 1),
    Sketcher.Constraint("Coincident", 16, 2, 17, 1),
    Sketcher.Constraint("Coincident", 17, 2, 18, 1),
    Sketcher.Constraint("Tangent", 18, 2, 19, 2),
    Sketcher.Constraint("Tangent", 19, 1, 20, 1),
    Sketcher.Constraint("Tangent", 20, 2, 21, 2),
    Sketcher.Constraint("Tangent", 21, 1, 22, 1),
    Sketcher.Constraint("Tangent", 22, 2, 23, 2),
    Sketcher.Constraint("Tangent", 23, 1, 24, 1),
    Sketcher.Constraint("Coincident", 24, 2, 25, 1),
    Sketcher.Constraint("Coincident", 25, 2, 26, 1),
    Sketcher.Constraint("Tangent", 26, 2, 27, 2),
    Sketcher.Constraint("Tangent", 27, 1, 28, 1),
    Sketcher.Constraint("Tangent", 28, 2, 29, 2),
    Sketcher.Constraint("Tangent", 29, 1, 30, 1),
    Sketcher.Constraint("Coincident", 30, 2, 31, 1),
    Sketcher.Constraint("Coincident", 31, 2, 32, 1),
    Sketcher.Constraint("Tangent", 32, 2, 33, 2),
    Sketcher.Constraint("Tangent", 33, 1, 34, 1),
    Sketcher.Constraint("Tangent", 34, 2, 35, 2),
    Sketcher.Constraint("Tangent", 35, 1, 36, 1),
    Sketcher.Constraint("Coincident", 36, 2, 37, 1),
    Sketcher.Constraint("Coincident", 37, 2, 38, 1),
    Sketcher.Constraint("Tangent", 38, 2, 39, 2),
    Sketcher.Constraint("Tangent", 39, 1, 0, 1),
    Sketcher.Constraint("Tangent", 40, 2, 41, 2),
    Sketcher.Constraint("Tangent", 41, 1, 42, 1),
    Sketcher.Constraint("Coincident", 42, 2, 43, 1),
    Sketcher.Constraint("Coincident", 43, 2, 44, 1),
    Sketcher.Constraint("Tangent", 44, 2, 45, 2),
    Sketcher.Constraint("Tangent", 45, 1, 46, 1),
    Sketcher.Constraint("Tangent", 46, 2, 47, 2),
    Sketcher.Constraint("Tangent", 47, 1, 48, 1),
    Sketcher.Constraint("Coincident", 48, 2, 49, 1),
    Sketcher.Constraint("Coincident", 49, 2, 50, 1),
    Sketcher.Constraint("Tangent", 50, 2, 51, 2),
    Sketcher.Constraint("Tangent", 51, 1, 52, 1),
    Sketcher.Constraint("Tangent", 52, 2, 53, 2),
    Sketcher.Constraint("Tangent", 53, 1, 54, 1),
    Sketcher.Constraint("Coincident", 54, 2, 55, 1),
    Sketcher.Constraint("Coincident", 55, 2, 56, 1),
    Sketcher.Constraint("Tangent", 56, 2, 57, 2),
    Sketcher.Constraint("Tangent", 57, 1, 58, 1),
    Sketcher.Constraint("Tangent", 58, 2, 59, 2),
    Sketcher.Constraint("Tangent", 59, 1, 60, 1),
    Sketcher.Constraint("Tangent", 60, 2, 61, 2),
    Sketcher.Constraint("Tangent", 61, 1, 62, 1),
    Sketcher.Constraint("Coincident", 62, 2, 63, 1),
    Sketcher.Constraint("Coincident", 63, 2, 64, 1),
    Sketcher.Constraint("Tangent", 64, 2, 65, 2),
    Sketcher.Constraint("Tangent", 65, 1, 66, 1),
    Sketcher.Constraint("Tangent", 66, 2, 67, 2),
    Sketcher.Constraint("Tangent", 67, 1, 68, 1),
    Sketcher.Constraint("Coincident", 68, 2, 69, 1),
    Sketcher.Constraint("Coincident", 69, 2, 70, 1),
    Sketcher.Constraint("Tangent", 70, 2, 71, 2),
    Sketcher.Constraint("Tangent", 71, 1, 72, 1),
    Sketcher.Constraint("Tangent", 72, 2, 73, 2),
    Sketcher.Constraint("Tangent", 73, 1, 40, 1),
    Sketcher.Constraint("Horizontal", 0),
    Sketcher.Constraint("Vertical", 2),
    Sketcher.Constraint("Horizontal", 4),
    Sketcher.Constraint("Vertical", 5),
    Sketcher.Constraint("Horizontal", 6),
    Sketcher.Constraint("Vertical", 8),
    Sketcher.Constraint("Horizontal", 10),
    Sketcher.Constraint("Vertical", 11),
    Sketcher.Constraint("Horizontal", 12),
    Sketcher.Constraint("Vertical", 14),
    Sketcher.Constraint("Horizontal", 16),
    Sketcher.Constraint("Vertical", 17),
    Sketcher.Constraint("Horizontal", 18),
    Sketcher.Constraint("Horizontal", 20),
    Sketcher.Constraint("Vertical", 22),
    Sketcher.Constraint("Horizontal", 24),
    Sketcher.Constraint("Vertical", 25),
    Sketcher.Constraint("Horizontal", 26),
    Sketcher.Constraint("Vertical", 28),
    Sketcher.Constraint("Horizontal", 30),
    Sketcher.Constraint("Vertical", 31),
    Sketcher.Constraint("Horizontal", 32),
    Sketcher.Constraint("Vertical", 34),
    Sketcher.Constraint("Horizontal", 36),
    Sketcher.Constraint("Vertical", 37),
    Sketcher.Constraint("Horizontal", 38),
    Sketcher.Constraint("Horizontal", 40),
    Sketcher.Constraint("Horizontal", 42),
    Sketcher.Constraint("Vertical", 43),
    Sketcher.Constraint("Horizontal", 44),
    Sketcher.Constraint("Vertical", 46),
    Sketcher.Constraint("Horizontal", 48),
    Sketcher.Constraint("Vertical", 49),
    Sketcher.Constraint("Horizontal", 50),
    Sketcher.Constraint("Vertical", 52),
    Sketcher.Constraint("Horizontal", 54),
    Sketcher.Constraint("Vertical", 55),
    Sketcher.Constraint("Horizontal", 56),
    Sketcher.Constraint("Horizontal", 58),
    Sketcher.Constraint("Vertical", 60),
    Sketcher.Constraint("Horizontal", 62),
    Sketcher.Constraint("Vertical", 63),
    Sketcher.Constraint("Horizontal", 64),
    Sketcher.Constraint("Vertical", 66),
    Sketcher.Constraint("Horizontal", 68),
    Sketcher.Constraint("Vertical", 69),
    Sketcher.Constraint("Horizontal", 70),
    Sketcher.Constraint("Vertical", 72),
    Sketcher.Constraint("Equal", 1, 3),
    Sketcher.Constraint("Equal", 3, 7),
    Sketcher.Constraint("Equal", 7, 9),
    Sketcher.Constraint("Equal", 9, 13),
    Sketcher.Constraint("Equal", 13, 15),
    Sketcher.Constraint("Equal", 15, 21),
    Sketcher.Constraint("Equal", 21, 23),
    Sketcher.Constraint("Equal", 23, 27),
    Sketcher.Constraint("Equal", 27, 29),
    Sketcher.Constraint("Equal", 29, 33),
    Sketcher.Constraint("Equal", 33, 35),
    Sketcher.Constraint("Equal", 19, 39),
    Sketcher.Constraint("Equal", 39, 41),
    Sketcher.Constraint("Equal", 35, 45),
    Sketcher.Constraint("Equal", 45, 47),
    Sketcher.Constraint("Equal", 47, 51),
    Sketcher.Constraint("Equal", 51, 53),
    Sketcher.Constraint("Equal", 41, 57),
    Sketcher.Constraint("Equal", 53, 59),
    Sketcher.Constraint("Equal", 59, 61),
    Sketcher.Constraint("Equal", 61, 65),
    Sketcher.Constraint("Equal", 65, 67),
    Sketcher.Constraint("Equal", 67, 71),
    Sketcher.Constraint("Equal", 71, 73),
    Sketcher.Constraint("Vertical", 3, 3, 7, 3),
    Sketcher.Constraint("Vertical", 9, 3, 13, 3),
    Sketcher.Constraint("Vertical", 23, 3, 27, 3),
    Sketcher.Constraint("Vertical", 29, 3, 33, 3),
    Sketcher.Constraint("Vertical", 47, 3, 51, 3),
    Sketcher.Constraint("Vertical", 41, 3, 57, 3),
    Sketcher.Constraint("Vertical", 61, 3, 65, 3),
    Sketcher.Constraint("Vertical", 67, 3, 71, 3),
    Sketcher.Constraint("Vertical", 5, 2, 10, 2),
    Sketcher.Constraint("Vertical", 11, 2, 16, 2),
    Sketcher.Constraint("Vertical", 25, 2, 30, 2),
    Sketcher.Constraint("Vertical", 31, 2, 36, 2),
    Sketcher.Constraint("Vertical", 43, 2, 48, 2),
    Sketcher.Constraint("Vertical", 49, 2, 54, 2),
    Sketcher.Constraint("Vertical", 63, 2, 68, 2),
    Sketcher.Constraint("Equal", 16, 24),
    Sketcher.Constraint("Equal", 36, 44),
    Sketcher.Constraint("Equal", 54, 62),
    Sketcher.Constraint("Equal", 5, 11),
    Sketcher.Constraint("Equal", 8, 14),
    Sketcher.Constraint("Equal", 11, 17),
    Sketcher.Constraint("Equal", 14, 22),
    Sketcher.Constraint("Equal", 17, 25),
    Sketcher.Constraint("Equal", 22, 28),
    Sketcher.Constraint("Equal", 25, 31),
    Sketcher.Constraint("Equal", 28, 34),
    Sketcher.Constraint("Equal", 31, 43),
    Sketcher.Constraint("Equal", 34, 46),
    Sketcher.Constraint("Equal", 43, 49),
    Sketcher.Constraint("Equal", 46, 52),
    Sketcher.Constraint("Equal", 49, 55),
    Sketcher.Constraint("Equal", 52, 60),
    Sketcher.Constraint("Equal", 55, 63),
    Sketcher.Constraint("Equal", 60, 66),
    Sketcher.Constraint("Equal", 63, 69),
    Sketcher.Constraint("Equal", 66, 72),
    Sketcher.Constraint("Radius", 1, Q("15 mm")),
    Sketcher.Constraint("Radius", 19, Q("25 mm")),
    Sketcher.Constraint("DistanceX", 0, 1, 0, 2, Q("1680 mm")),
    Sketcher.Constraint("DistanceX", 4, 2, 4, 1, Q("525 mm")),
    Sketcher.Constraint("DistanceX", 18, 1, 18, 2, Q("620 mm")),
    Sketcher.Constraint("DistanceX", 20, 2, 20, 1, Q("655 mm")),
    Sketcher.Constraint("DistanceX", 40, 2, 40, 1, Q("565 mm")),
    Sketcher.Constraint("DistanceX", 42, 1, 42, 2, Q("530 mm")),
    Sketcher.Constraint("DistanceY", 2, 2, 2, 1, Q("140 mm")),
    Sketcher.Constraint("DistanceY", 5, 2, 5, 1, Q("40 mm")),
    Sketcher.Constraint("DistanceX", -1, 1, 1, 3, Q("1770 mm")),
    Sketcher.Constraint("DistanceY", -1, 1, 1, 3, Q("678 mm")),
    Sketcher.Constraint("DistanceX", -1, 1, 41, 3, Q("1835 mm")),
    Sketcher.Constraint("DistanceY", -1, 1, 41, 3, Q("180 mm")),
])
pocket2 = body.newObject("PartDesign::Pocket", "Pocket001")
pocket2.Profile = sketch3
pocket2.Length = 27
pocket2.Reversed = True

# Sketch on XZ plane
sketch4 = body.newObject("Sketcher::SketchObject", "Sketch003")
sketch4.AttachmentSupport = (doc.getObject("XZ_Plane"), [""])
sketch4.MapMode = "FlatFace"
sketch4.addGeometry([
    Part.LineSegment(Vector(1835, 123, 0), Vector(1865, 123, 0)),  # 0
    Part.ArcOfCircle(Part.Circle(Vector(1865, 113, 0), Vector(0, 0, 1), 10), math.radians(0), math.radians(90)),  # 1
    Part.LineSegment(Vector(1875, 113, 0), Vector(1875, 83, 0)),  # 2
    Part.ArcOfCircle(Part.Circle(Vector(1865, 83, 0), Vector(0, 0, 1), 10), math.radians(-90), math.radians(0)),  # 3
    Part.LineSegment(Vector(1865, 73, 0), Vector(1835, 73, 0)),  # 4
    Part.ArcOfCircle(Part.Circle(Vector(1835, 83, 0), Vector(0, 0, 1), 10), math.radians(180), math.radians(270)),  # 5
    Part.LineSegment(Vector(1825, 83, 0), Vector(1825, 113, 0)),  # 6
    Part.ArcOfCircle(Part.Circle(Vector(1835, 113, 0), Vector(0, 0, 1), 10), math.radians(90), math.radians(180)),  # 7
    Part.LineSegment(Vector(1835, 205, 0), Vector(1865, 205, 0)),  # 8
    Part.ArcOfCircle(Part.Circle(Vector(1865, 195, 0), Vector(0, 0, 1), 10), math.radians(0), math.radians(90)),  # 9
    Part.LineSegment(Vector(1875, 195, 0), Vector(1875, 165, 0)),  # 10
    Part.ArcOfCircle(Part.Circle(Vector(1865, 165, 0), Vector(0, 0, 1), 10), math.radians(-90), math.radians(0)),  # 11
    Part.LineSegment(Vector(1865, 155, 0), Vector(1835, 155, 0)),  # 12
    Part.ArcOfCircle(Part.Circle(Vector(1835, 165, 0), Vector(0, 0, 1), 10), math.radians(180), math.radians(270)),  # 13
    Part.LineSegment(Vector(1825, 165, 0), Vector(1825, 195, 0)),  # 14
    Part.ArcOfCircle(Part.Circle(Vector(1835, 195, 0), Vector(0, 0, 1), 10), math.radians(90), math.radians(180)),  # 15
], False)
sketch4.addConstraint([
    Sketcher.Constraint("Tangent", 0, 2, 1, 2),
    Sketcher.Constraint("Tangent", 1, 1, 2, 1),
    Sketcher.Constraint("Tangent", 2, 2, 3, 2),
    Sketcher.Constraint("Tangent", 3, 1, 4, 1),
    Sketcher.Constraint("Tangent", 4, 2, 5, 2),
    Sketcher.Constraint("Tangent", 5, 1, 6, 1),
    Sketcher.Constraint("Tangent", 6, 2, 7, 2),
    Sketcher.Constraint("Tangent", 7, 1, 0, 1),
    Sketcher.Constraint("Tangent", 8, 2, 9, 2),
    Sketcher.Constraint("Tangent", 9, 1, 10, 1),
    Sketcher.Constraint("Tangent", 10, 2, 11, 2),
    Sketcher.Constraint("Tangent", 11, 1, 12, 1),
    Sketcher.Constraint("Tangent", 12, 2, 13, 2),
    Sketcher.Constraint("Tangent", 13, 1, 14, 1),
    Sketcher.Constraint("Tangent", 14, 2, 15, 2),
    Sketcher.Constraint("Tangent", 15, 1, 8, 1),
    Sketcher.Constraint("Horizontal", 0),
    Sketcher.Constraint("Vertical", 2),
    Sketcher.Constraint("Horizontal", 4),
    Sketcher.Constraint("Vertical", 6),
    Sketcher.Constraint("Horizontal", 8),
    Sketcher.Constraint("Vertical", 10),
    Sketcher.Constraint("Horizontal", 12),
    Sketcher.Constraint("Vertical", 14),
    Sketcher.Constraint("Equal", 1, 3),
    Sketcher.Constraint("Equal", 3, 5),
    Sketcher.Constraint("Equal", 5, 7),
    Sketcher.Constraint("Equal", 7, 9),
    Sketcher.Constraint("Equal", 9, 11),
    Sketcher.Constraint("Equal", 11, 13),
    Sketcher.Constraint("Equal", 13, 15),
    Sketcher.Constraint("Vertical", 3, 3, 9, 3),
    Sketcher.Constraint("Vertical", 7, 3, 13, 3),
    Sketcher.Constraint("Equal", 12, 2),
    Sketcher.Constraint("Equal", 6, 10),
    Sketcher.Constraint("Radius", 1, Q("10 mm")),
    Sketcher.Constraint("DistanceX", 0, 1, 0, 2, Q("30 mm")),
    Sketcher.Constraint("DistanceX", -1, 1, 1, 3, Q("1865 mm")),
    Sketcher.Constraint("DistanceY", -1, 1, 1, 3, Q("113 mm")),
    Sketcher.Constraint("DistanceY", -1, 1, 9, 3, Q("195 mm")),
])
pocket3 = body.newObject("PartDesign::Pocket", "Pocket002")
pocket3.Profile = sketch4
pocket3.Length = 45
pocket3.Reversed = True

# Sketch on XZ plane
sketch5 = body.newObject("Sketcher::SketchObject", "Sketch004")
sketch5.AttachmentSupport = (doc.getObject("XZ_Plane"), [""])
sketch5.MapMode = "FlatFace"
sketch5.addGeometry([
    Part.LineSegment(Vector(1868, 188, 0), Vector(1868, 172, 0)),  # 0
    Part.ArcOfCircle(Part.Circle(Vector(1858, 172, 0), Vector(0, 0, 1), 10), math.radians(-90), math.radians(0)),  # 1
    Part.LineSegment(Vector(1858, 162, 0), Vector(1842, 162, 0)),  # 2
    Part.ArcOfCircle(Part.Circle(Vector(1842, 172, 0), Vector(0, 0, 1), 10), math.radians(180), math.radians(270)),  # 3
    Part.LineSegment(Vector(1832, 172, 0), Vector(1832, 188, 0)),  # 4
    Part.ArcOfCircle(Part.Circle(Vector(1842, 188, 0), Vector(0, 0, 1), 10), math.radians(90), math.radians(180)),  # 5
    Part.LineSegment(Vector(1842, 198, 0), Vector(1858, 198, 0)),  # 6
    Part.ArcOfCircle(Part.Circle(Vector(1858, 188, 0), Vector(0, 0, 1), 10), math.radians(0), math.radians(90)),  # 7
    Part.LineSegment(Vector(1858, 80, 0), Vector(1842, 80, 0)),  # 8
    Part.ArcOfCircle(Part.Circle(Vector(1842, 90, 0), Vector(0, 0, 1), 10), math.radians(180), math.radians(270)),  # 9
    Part.LineSegment(Vector(1832, 90, 0), Vector(1832, 106, 0)),  # 10
    Part.ArcOfCircle(Part.Circle(Vector(1842, 106, 0), Vector(0, 0, 1), 10), math.radians(90), math.radians(180)),  # 11
    Part.LineSegment(Vector(1842, 116, 0), Vector(1858, 116, 0)),  # 12
    Part.ArcOfCircle(Part.Circle(Vector(1858, 106, 0), Vector(0, 0, 1), 10), math.radians(0), math.radians(90)),  # 13
    Part.LineSegment(Vector(1868, 106, 0), Vector(1868, 90, 0)),  # 14
    Part.ArcOfCircle(Part.Circle(Vector(1858, 90, 0), Vector(0, 0, 1), 10), math.radians(-90), math.radians(0)),  # 15
], False)
sketch5.addConstraint([
    Sketcher.Constraint("Tangent", 0, 2, 1, 2),
    Sketcher.Constraint("Tangent", 1, 1, 2, 1),
    Sketcher.Constraint("Tangent", 2, 2, 3, 2),
    Sketcher.Constraint("Tangent", 3, 1, 4, 1),
    Sketcher.Constraint("Tangent", 4, 2, 5, 2),
    Sketcher.Constraint("Tangent", 5, 1, 6, 1),
    Sketcher.Constraint("Tangent", 6, 2, 7, 2),
    Sketcher.Constraint("Tangent", 7, 1, 0, 1),
    Sketcher.Constraint("Tangent", 8, 2, 9, 2),
    Sketcher.Constraint("Tangent", 9, 1, 10, 1),
    Sketcher.Constraint("Tangent", 10, 2, 11, 2),
    Sketcher.Constraint("Tangent", 11, 1, 12, 1),
    Sketcher.Constraint("Tangent", 12, 2, 13, 2),
    Sketcher.Constraint("Tangent", 13, 1, 14, 1),
    Sketcher.Constraint("Tangent", 14, 2, 15, 2),
    Sketcher.Constraint("Tangent", 15, 1, 8, 1),
    Sketcher.Constraint("Vertical", 0),
    Sketcher.Constraint("Horizontal", 2),
    Sketcher.Constraint("Vertical", 4),
    Sketcher.Constraint("Horizontal", 6),
    Sketcher.Constraint("Horizontal", 8),
    Sketcher.Constraint("Vertical", 10),
    Sketcher.Constraint("Horizontal", 12),
    Sketcher.Constraint("Vertical", 14),
    Sketcher.Constraint("Equal", 1, 3),
    Sketcher.Constraint("Equal", 3, 5),
    Sketcher.Constraint("Equal", 5, 7),
    Sketcher.Constraint("Equal", 7, 9),
    Sketcher.Constraint("Equal", 9, 11),
    Sketcher.Constraint("Equal", 11, 13),
    Sketcher.Constraint("Equal", 13, 15),
    Sketcher.Constraint("Vertical", 5, 3, 9, 3),
    Sketcher.Constraint("Vertical", 7, 3, 13, 3),
    Sketcher.Constraint("Equal", 12, 0),
    Sketcher.Constraint("Equal", 4, 10),
    Sketcher.Constraint("Radius", 1, Q("10 mm")),
    Sketcher.Constraint("DistanceX", 2, 2, 2, 1, Q("15 mm")),
    Sketcher.Constraint("DistanceY", 9, 3, 3, 3, Q("82 mm")),
    Sketcher.Constraint("DistanceX", -1, 1, 1, 3, Q("1857.5 mm")),
    Sketcher.Constraint("DistanceY", -1, 1, 1, 3, Q("172.5 mm")),
])
pocket4 = body.newObject("PartDesign::Pocket", "Pocket003")
pocket4.Profile = sketch5
pocket4.Length = 50
pocket4.Reversed = True

doc.recompute()
